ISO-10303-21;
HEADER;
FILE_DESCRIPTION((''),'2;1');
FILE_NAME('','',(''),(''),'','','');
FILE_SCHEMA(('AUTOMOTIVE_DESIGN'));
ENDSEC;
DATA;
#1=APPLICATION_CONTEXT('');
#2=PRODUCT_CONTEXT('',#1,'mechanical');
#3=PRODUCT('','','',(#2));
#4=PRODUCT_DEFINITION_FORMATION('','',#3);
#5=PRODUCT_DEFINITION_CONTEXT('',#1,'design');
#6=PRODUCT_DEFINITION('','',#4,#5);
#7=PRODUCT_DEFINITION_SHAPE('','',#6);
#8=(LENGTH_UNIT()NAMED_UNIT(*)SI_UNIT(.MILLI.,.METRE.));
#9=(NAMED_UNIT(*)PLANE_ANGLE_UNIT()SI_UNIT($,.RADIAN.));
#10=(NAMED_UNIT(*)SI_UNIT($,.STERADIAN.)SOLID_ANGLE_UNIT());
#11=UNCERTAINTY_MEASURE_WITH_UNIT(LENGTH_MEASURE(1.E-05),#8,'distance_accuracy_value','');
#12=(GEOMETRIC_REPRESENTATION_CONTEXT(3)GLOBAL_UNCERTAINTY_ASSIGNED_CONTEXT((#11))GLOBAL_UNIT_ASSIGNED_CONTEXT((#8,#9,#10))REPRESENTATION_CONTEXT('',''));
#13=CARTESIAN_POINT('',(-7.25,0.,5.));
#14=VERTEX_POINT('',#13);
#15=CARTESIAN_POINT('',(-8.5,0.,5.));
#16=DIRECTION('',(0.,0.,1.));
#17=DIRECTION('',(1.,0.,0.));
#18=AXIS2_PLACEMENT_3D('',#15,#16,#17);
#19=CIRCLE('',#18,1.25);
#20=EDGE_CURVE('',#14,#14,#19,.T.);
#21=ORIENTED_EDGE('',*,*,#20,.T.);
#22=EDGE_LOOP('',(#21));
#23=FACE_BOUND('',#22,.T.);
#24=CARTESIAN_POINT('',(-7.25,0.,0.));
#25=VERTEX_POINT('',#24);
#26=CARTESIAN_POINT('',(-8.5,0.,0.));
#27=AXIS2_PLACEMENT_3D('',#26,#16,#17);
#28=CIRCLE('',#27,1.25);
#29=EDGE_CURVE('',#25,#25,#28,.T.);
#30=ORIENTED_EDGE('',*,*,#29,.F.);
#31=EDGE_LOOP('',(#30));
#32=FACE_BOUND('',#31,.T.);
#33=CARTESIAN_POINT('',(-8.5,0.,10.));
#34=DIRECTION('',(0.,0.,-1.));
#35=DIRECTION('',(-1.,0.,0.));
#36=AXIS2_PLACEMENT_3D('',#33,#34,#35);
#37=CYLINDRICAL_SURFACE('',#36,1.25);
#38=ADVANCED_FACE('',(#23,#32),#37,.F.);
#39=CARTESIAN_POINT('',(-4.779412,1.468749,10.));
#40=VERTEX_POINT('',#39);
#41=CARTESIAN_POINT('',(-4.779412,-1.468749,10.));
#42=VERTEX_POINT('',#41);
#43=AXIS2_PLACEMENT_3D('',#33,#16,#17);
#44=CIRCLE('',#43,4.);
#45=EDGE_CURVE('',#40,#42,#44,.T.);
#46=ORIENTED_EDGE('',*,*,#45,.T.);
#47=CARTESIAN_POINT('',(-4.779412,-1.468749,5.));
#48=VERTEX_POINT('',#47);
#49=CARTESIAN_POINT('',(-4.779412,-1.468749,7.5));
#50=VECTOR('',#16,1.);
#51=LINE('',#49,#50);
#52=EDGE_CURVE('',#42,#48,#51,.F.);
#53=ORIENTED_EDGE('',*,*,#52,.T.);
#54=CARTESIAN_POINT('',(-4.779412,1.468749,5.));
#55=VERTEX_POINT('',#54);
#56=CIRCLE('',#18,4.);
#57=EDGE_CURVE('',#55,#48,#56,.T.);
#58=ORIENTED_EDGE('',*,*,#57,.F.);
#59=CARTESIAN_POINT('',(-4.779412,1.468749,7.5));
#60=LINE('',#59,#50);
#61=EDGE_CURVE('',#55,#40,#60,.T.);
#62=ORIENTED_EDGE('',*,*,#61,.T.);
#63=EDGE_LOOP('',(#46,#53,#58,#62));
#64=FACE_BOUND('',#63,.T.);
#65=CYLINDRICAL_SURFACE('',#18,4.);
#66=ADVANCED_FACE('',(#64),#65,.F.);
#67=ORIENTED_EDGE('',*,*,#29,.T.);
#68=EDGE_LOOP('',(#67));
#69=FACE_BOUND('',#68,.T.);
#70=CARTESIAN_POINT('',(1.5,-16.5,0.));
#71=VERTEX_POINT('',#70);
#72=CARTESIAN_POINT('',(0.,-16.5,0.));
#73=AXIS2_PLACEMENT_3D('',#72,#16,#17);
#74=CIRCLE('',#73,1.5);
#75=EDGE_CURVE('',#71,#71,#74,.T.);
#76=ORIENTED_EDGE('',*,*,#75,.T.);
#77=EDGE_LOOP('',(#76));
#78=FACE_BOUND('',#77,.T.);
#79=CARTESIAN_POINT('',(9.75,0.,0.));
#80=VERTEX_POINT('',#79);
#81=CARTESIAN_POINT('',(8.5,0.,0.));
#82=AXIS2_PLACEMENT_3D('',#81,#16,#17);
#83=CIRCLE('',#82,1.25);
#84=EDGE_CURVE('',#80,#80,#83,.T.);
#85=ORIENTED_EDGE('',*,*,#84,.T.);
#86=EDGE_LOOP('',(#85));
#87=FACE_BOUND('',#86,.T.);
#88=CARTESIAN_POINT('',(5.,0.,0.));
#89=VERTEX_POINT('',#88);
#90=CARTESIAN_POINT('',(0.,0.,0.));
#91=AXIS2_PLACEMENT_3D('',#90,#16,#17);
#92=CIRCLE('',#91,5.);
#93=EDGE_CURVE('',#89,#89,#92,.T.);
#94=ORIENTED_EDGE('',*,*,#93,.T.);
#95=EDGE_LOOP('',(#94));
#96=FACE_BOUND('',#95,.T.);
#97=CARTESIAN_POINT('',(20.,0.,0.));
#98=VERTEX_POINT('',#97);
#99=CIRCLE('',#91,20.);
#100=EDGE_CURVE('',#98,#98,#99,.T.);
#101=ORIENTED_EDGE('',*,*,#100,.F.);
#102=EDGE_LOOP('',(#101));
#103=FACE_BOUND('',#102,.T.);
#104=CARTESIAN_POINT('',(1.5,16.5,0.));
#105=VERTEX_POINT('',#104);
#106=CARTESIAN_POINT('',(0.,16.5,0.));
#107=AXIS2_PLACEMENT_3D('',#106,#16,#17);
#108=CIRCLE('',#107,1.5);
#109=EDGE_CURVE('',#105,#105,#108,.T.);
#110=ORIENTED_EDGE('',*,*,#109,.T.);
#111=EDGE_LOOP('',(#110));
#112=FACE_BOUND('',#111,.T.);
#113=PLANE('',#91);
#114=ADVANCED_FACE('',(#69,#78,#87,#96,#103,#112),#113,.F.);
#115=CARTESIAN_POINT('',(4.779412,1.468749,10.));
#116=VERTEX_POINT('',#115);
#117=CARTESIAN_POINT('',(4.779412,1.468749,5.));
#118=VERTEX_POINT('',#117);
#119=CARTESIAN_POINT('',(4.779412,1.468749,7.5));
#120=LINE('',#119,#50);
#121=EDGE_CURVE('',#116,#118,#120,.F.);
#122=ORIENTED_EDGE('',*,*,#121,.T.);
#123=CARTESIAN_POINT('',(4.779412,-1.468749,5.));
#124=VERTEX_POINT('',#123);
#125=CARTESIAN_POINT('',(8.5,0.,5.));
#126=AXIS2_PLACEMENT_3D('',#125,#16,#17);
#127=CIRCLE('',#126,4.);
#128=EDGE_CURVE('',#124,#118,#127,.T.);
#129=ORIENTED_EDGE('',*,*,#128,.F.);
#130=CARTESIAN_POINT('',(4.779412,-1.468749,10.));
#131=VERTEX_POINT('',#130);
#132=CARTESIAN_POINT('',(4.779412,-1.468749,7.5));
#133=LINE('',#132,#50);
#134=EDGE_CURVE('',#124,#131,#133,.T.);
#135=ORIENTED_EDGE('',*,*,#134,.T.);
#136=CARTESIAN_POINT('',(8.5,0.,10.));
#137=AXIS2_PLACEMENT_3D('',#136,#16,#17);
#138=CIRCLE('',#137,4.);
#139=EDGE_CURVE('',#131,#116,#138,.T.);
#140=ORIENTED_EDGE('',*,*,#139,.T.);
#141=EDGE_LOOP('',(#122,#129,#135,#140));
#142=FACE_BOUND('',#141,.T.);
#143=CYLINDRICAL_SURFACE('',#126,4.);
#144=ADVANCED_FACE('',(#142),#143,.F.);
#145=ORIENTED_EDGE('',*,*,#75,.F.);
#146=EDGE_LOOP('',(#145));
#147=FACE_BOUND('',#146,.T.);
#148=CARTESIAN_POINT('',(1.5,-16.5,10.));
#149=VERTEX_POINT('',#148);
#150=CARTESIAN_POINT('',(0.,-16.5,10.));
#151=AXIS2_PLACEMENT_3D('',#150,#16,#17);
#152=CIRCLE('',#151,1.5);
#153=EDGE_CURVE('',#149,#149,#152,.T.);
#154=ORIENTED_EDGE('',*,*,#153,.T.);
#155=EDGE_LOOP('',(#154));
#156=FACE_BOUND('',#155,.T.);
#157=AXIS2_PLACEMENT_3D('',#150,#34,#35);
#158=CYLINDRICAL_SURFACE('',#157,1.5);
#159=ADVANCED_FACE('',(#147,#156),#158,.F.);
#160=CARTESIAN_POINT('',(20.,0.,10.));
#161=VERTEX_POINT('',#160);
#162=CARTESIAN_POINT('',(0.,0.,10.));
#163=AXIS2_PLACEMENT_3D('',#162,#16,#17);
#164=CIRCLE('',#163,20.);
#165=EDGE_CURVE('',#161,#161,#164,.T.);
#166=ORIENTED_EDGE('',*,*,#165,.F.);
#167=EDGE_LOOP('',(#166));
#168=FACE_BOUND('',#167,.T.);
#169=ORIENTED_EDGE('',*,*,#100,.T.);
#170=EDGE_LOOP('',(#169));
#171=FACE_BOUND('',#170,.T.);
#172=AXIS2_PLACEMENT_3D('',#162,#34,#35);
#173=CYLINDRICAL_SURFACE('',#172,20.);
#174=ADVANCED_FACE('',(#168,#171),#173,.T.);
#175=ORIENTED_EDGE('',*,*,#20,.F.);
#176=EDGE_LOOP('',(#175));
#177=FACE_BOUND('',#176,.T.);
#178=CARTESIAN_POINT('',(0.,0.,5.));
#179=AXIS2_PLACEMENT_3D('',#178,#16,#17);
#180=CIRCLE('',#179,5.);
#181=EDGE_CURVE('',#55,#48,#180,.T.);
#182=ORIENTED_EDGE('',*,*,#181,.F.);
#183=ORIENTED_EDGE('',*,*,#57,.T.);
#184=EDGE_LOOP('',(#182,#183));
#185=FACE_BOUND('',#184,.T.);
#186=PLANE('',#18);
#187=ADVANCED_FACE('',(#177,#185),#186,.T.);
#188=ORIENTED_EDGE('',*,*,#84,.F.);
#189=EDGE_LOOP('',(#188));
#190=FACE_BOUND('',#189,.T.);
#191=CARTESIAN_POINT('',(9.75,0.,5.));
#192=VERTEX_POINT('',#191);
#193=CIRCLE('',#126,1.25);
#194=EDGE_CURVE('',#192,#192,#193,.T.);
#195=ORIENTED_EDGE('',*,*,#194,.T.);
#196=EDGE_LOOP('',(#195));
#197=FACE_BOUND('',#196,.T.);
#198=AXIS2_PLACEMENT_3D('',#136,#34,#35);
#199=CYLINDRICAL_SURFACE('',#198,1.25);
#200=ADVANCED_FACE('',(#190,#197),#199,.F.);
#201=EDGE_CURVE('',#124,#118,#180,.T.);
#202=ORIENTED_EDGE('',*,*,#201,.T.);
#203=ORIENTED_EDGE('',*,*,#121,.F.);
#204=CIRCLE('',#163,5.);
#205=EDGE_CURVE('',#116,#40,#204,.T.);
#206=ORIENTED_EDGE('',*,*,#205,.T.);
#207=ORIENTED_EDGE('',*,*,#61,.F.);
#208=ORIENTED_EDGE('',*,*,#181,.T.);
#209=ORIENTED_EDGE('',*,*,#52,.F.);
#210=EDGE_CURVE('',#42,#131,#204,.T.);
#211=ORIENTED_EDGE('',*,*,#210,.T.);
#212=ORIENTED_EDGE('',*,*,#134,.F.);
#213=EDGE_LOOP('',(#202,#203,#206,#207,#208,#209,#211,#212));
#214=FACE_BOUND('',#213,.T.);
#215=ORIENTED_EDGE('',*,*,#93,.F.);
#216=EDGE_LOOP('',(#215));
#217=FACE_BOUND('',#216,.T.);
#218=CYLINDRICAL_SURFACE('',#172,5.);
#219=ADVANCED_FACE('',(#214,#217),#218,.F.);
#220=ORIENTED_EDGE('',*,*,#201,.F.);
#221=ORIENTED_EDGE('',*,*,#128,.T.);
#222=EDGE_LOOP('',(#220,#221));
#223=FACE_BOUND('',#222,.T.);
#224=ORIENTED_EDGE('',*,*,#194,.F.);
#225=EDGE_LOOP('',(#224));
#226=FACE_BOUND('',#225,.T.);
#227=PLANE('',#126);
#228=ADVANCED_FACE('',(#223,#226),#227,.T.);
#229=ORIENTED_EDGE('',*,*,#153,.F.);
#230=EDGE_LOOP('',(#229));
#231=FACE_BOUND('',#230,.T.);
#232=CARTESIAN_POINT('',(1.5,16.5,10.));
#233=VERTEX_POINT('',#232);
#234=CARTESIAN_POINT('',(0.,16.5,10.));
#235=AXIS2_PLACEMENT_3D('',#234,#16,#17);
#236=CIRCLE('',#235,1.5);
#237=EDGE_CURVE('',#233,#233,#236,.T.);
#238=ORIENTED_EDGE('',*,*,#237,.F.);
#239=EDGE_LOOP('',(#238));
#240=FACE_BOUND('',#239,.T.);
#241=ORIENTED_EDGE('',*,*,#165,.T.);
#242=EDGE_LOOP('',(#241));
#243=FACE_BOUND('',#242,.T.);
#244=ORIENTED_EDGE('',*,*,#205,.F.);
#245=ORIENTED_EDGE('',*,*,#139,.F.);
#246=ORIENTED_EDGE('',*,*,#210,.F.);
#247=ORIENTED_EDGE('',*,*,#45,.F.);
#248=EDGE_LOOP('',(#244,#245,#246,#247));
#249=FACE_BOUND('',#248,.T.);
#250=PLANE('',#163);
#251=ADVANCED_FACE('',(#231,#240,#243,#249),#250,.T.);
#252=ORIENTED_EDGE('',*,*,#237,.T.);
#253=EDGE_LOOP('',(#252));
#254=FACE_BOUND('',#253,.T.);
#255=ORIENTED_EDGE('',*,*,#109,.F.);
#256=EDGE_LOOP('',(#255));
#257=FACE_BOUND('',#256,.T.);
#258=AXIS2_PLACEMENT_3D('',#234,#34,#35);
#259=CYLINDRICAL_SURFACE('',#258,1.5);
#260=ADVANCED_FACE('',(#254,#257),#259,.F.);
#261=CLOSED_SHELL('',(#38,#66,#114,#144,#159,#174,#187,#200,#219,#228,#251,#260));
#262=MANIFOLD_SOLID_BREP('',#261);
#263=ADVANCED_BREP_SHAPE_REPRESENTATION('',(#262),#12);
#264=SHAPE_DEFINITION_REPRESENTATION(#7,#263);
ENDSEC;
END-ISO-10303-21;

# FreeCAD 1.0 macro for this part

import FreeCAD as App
import Part
import Sketcher

V = App.Vector

doc = App.newDocument("Part")
params = doc.addObject("Spreadsheet::Sheet", "Params")
for row, (alias, value) in enumerate([
    ("sketch1_diameter", "40 mm"),
    ("sketch1_diameter2", "3 mm"),
    ("sketch1_diameter3", "10 mm"),
    ("sketch1_diameter4", "2.5 mm"),
    ("pad1_length", "10 mm"),
    ("sketch2_diameter", "8 mm"),
    ("pocket1_length", "5 mm"),
], start=1):
    params.set(f"A{row}", alias)
    params.set(f"B{row}", "=" + value)
    params.setAlias(f"B{row}", alias)

body = doc.addObject("PartDesign::Body", "Body")

# Sketch on XY plane
sketch1 = body.newObject("Sketcher::SketchObject", "Sketch")
sketch1.AttachmentSupport = (doc.getObject("XY_Plane"), [""])
sketch1.MapMode = "FlatFace"
sketch1.addGeometry([
    Part.Circle(V(0, 0, 0), V(0, 0, 1), 20),  # 0
    Part.Circle(V(0, -16.5, 0), V(0, 0, 1), 1.5),  # 1
    Part.Circle(V(-8.5, 0, 0), V(0, 0, 1), 1.25),  # 2
    Part.Circle(V(0, 0, 0), V(0, 0, 1), 5),  # 3
    Part.Circle(V(8.5, 0, 0), V(0, 0, 1), 1.25),  # 4
    Part.Circle(V(0, 16.5, 0), V(0, 0, 1), 1.5),  # 5
], False)
sketch1.addConstraint([
    Sketcher.Constraint("Coincident", 0, 3, -1, 1),
    Sketcher.Constraint("Coincident", 3, 3, -1, 1),
    Sketcher.Constraint("Equal", 2, 4),
    Sketcher.Constraint("Equal", 1, 5),
    Sketcher.Constraint("Symmetric", 2, 3, 4, 3, -1, 1),
    Sketcher.Constraint("Symmetric", 1, 3, 5, 3, -1, 1),
    Sketcher.Constraint("PointOnObject", 1, 3, -2),
    Sketcher.Constraint("PointOnObject", 2, 3, -1),
    Sketcher.Constraint("Diameter", 0, 40.0),
    Sketcher.Constraint("Diameter", 1, 3.0),
    Sketcher.Constraint("Diameter", 3, 10.0),
    Sketcher.Constraint("Diameter", 2, 2.5),
    Sketcher.Constraint("DistanceX", 2, 3, 4, 3, 17.0),
    Sketcher.Constraint("DistanceY", 1, 3, 5, 3, 33.0),
])
sketch1.setExpression("Constraints[8]", "Params.sketch1_diameter")
sketch1.setExpression("Constraints[9]", "Params.sketch1_diameter2")
sketch1.setExpression("Constraints[10]", "Params.sketch1_diameter3")
sketch1.setExpression("Constraints[11]", "Params.sketch1_diameter4")
pad1 = body.newObject("PartDesign::Pad", "Pad")
pad1.Profile = sketch1
pad1.setExpression("Length", "Params.pad1_length")

# Sketch on XY plane
sketch2 = body.newObject("Sketcher::SketchObject", "Sketch001")
sketch2.AttachmentSupport = (doc.getObject("XY_Plane"), [""])
sketch2.MapMode = "FlatFace"
sketch2.AttachmentOffset = App.Placement(V(0, 0, 10), App.Rotation())
sketch2.addGeometry([
    Part.Circle(V(8.5, 0, 0), V(0, 0, 1), 4),
    Part.Circle(V(-8.5, 0, 0), V(0, 0, 1), 4),
], False)
sketch2.addConstraint([
    Sketcher.Constraint("Equal", 0, 1),
    Sketcher.Constraint("Symmetric", 0, 3, 1, 3, -1, 1),
    Sketcher.Constraint("PointOnObject", 0, 3, -1),
    Sketcher.Constraint("Diameter", 0, 8.0),
    Sketcher.Constraint("DistanceX", 1, 3, 0, 3, 17.0),
])
sketch2.setExpression("Constraints[3]", "Params.sketch2_diameter")
pocket1 = body.newObject("PartDesign::Pocket", "Pocket")
pocket1.Profile = sketch2
pocket1.setExpression("Length", "Params.pocket1_length")

doc.recompute()
